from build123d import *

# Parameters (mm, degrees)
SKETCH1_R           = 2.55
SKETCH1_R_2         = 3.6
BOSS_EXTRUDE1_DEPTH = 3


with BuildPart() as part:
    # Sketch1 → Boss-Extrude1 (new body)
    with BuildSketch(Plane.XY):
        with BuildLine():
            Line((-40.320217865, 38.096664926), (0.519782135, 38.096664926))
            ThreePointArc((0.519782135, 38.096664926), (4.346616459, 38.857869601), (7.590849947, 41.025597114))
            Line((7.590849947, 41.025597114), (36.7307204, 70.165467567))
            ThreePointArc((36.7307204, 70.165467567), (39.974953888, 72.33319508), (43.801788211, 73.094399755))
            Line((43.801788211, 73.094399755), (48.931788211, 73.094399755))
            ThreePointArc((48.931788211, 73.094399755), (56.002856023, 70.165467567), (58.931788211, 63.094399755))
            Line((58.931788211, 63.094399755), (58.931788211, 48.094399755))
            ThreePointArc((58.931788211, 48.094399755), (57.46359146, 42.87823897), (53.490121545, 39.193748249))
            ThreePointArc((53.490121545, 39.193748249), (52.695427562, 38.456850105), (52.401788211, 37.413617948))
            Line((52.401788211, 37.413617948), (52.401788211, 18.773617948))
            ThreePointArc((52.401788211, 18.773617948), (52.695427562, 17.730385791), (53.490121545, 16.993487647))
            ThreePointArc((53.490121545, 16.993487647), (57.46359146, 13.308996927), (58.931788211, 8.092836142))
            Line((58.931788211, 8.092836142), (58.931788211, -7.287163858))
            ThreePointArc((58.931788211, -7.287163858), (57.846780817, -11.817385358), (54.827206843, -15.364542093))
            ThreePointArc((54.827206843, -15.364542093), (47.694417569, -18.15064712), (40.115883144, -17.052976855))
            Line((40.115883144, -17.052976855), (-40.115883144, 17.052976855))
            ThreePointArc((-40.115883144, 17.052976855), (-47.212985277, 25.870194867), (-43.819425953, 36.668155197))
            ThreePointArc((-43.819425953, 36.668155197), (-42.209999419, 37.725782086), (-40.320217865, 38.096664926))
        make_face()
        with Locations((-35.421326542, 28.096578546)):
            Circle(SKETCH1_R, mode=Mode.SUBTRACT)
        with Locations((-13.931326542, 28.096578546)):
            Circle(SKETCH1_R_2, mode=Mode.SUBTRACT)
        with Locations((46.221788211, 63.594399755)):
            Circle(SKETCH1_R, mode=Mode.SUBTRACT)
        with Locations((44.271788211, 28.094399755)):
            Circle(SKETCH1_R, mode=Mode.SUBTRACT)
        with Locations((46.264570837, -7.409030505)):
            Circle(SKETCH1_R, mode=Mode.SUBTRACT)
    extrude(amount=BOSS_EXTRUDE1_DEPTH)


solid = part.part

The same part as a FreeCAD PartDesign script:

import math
import FreeCAD as App
import Part
import Sketcher
Q = App.Units.Quantity

doc = App.newDocument("Part")
body = doc.addObject("PartDesign::Body", "Body")

sketch1 = doc.addObject("Sketcher::SketchObject", "Sketch")
body.addObject(sketch1)
sketch1.AttachmentSupport = (doc.XY_Plane, [""])
sketch1.MapMode = "FlatFace"
sketch1.addGeometry(Part.LineSegment(App.Vector(0.5, 38.1, 0), App.Vector(-40.3, 38.1, 0)), False)
sketch1.addGeometry(Part.ArcOfCircle(Part.Circle(App.Vector(-40.3, 33.1, 0), App.Vector(0, 0, 1), 5), math.radians(90), math.radians(134)), False)
sketch1.addGeometry(Part.ArcOfCircle(Part.Circle(App.Vector(-35.4, 28.1, 0), App.Vector(0, 0, 1), 12), math.radians(134), math.radians(247)), False)
sketch1.addGeometry(Part.LineSegment(App.Vector(-40.1, 17.1, 0), App.Vector(40.1, -17.1, 0)), False)
sketch1.addGeometry(Part.ArcOfCircle(Part.Circle(App.Vector(46, -3.2, 0), App.Vector(0, 0, 1), 15), math.radians(-113), math.radians(-54)), False)
sketch1.addGeometry(Part.ArcOfCircle(Part.Circle(App.Vector(48.9, -7.3, 0), App.Vector(0, 0, 1), 10), math.radians(-54), math.radians(0)), False)
sketch1.addGeometry(Part.LineSegment(App.Vector(58.9, -7.3, 0), App.Vector(58.9, 8.1, 0)), False)
sketch1.addGeometry(Part.ArcOfCircle(Part.Circle(App.Vector(48.9, 8.1, 0), App.Vector(0, 0, 1), 10), math.radians(0), math.radians(63)), False)
sketch1.addGeometry(Part.ArcOfCircle(Part.Circle(App.Vector(54.4, 18.8, 0), App.Vector(0, 0, 1), 2), math.radians(-180), math.radians(-117)), False)
sketch1.addGeometry(Part.LineSegment(App.Vector(52.4, 18.8, 0), App.Vector(52.4, 37.4, 0)), False)
sketch1.addGeometry(Part.ArcOfCircle(Part.Circle(App.Vector(54.4, 37.4, 0), App.Vector(0, 0, 1), 2), math.radians(117), math.radians(180)), False)
sketch1.addGeometry(Part.ArcOfCircle(Part.Circle(App.Vector(48.9, 48.1, 0), App.Vector(0, 0, 1), 10), math.radians(-63), math.radians(0)), False)
sketch1.addGeometry(Part.LineSegment(App.Vector(58.9, 48.1, 0), App.Vector(58.9, 63.1, 0)), False)
sketch1.addGeometry(Part.ArcOfCircle(Part.Circle(App.Vector(48.9, 63.1, 0), App.Vector(0, 0, 1), 10), math.radians(0), math.radians(90)), False)
sketch1.addGeometry(Part.LineSegment(App.Vector(48.9, 73.1, 0), App.Vector(43.8, 73.1, 0)), False)
sketch1.addGeometry(Part.ArcOfCircle(Part.Circle(App.Vector(43.8, 63.1, 0), App.Vector(0, 0, 1), 10), math.radians(90), math.radians(135)), False)
sketch1.addGeometry(Part.LineSegment(App.Vector(36.7, 70.2, 0), App.Vector(7.6, 41, 0)), False)
sketch1.addGeometry(Part.ArcOfCircle(Part.Circle(App.Vector(0.5, 48.1, 0), App.Vector(0, 0, 1), 10), math.radians(-90), math.radians(-45)), False)
sketch1.addGeometry(Part.Circle(App.Vector(46.3, -7.4, 0), App.Vector(0, 0, 1), 2.5), False)
sketch1.addGeometry(Part.Circle(App.Vector(44.3, 28.1, 0), App.Vector(0, 0, 1), 2.5), False)
sketch1.addGeometry(Part.Circle(App.Vector(46.2, 63.6, 0), App.Vector(0, 0, 1), 2.5), False)
sketch1.addGeometry(Part.Circle(App.Vector(-13.9, 28.1, 0), App.Vector(0, 0, 1), 3.6), False)
sketch1.addGeometry(Part.Circle(App.Vector(-35.4, 28.1, 0), App.Vector(0, 0, 1), 2.5), False)
sketch1.addConstraint(Sketcher.Constraint("Tangent", 0, 2, 1, 1))
sketch1.addConstraint(Sketcher.Constraint("Tangent", 1, 2, 2, 1))
sketch1.addConstraint(Sketcher.Constraint("Tangent", 2, 2, 3, 1))
sketch1.addConstraint(Sketcher.Constraint("Tangent", 3, 2, 4, 1))
sketch1.addConstraint(Sketcher.Constraint("Tangent", 4, 2, 5, 1))
sketch1.addConstraint(Sketcher.Constraint("Tangent", 5, 2, 6, 1))
sketch1.addConstraint(Sketcher.Constraint("Tangent", 6, 2, 7, 1))
sketch1.addConstraint(Sketcher.Constraint("Tangent", 7, 2, 8, 2))
sketch1.addConstraint(Sketcher.Constraint("Tangent", 8, 1, 9, 1))
sketch1.addConstraint(Sketcher.Constraint("Tangent", 9, 2, 10, 2))
sketch1.addConstraint(Sketcher.Constraint("Tangent", 10, 1, 11, 1))
sketch1.addConstraint(Sketcher.Constraint("Tangent", 11, 2, 12, 1))
sketch1.addConstraint(Sketcher.Constraint("Tangent", 12, 2, 13, 1))
sketch1.addConstraint(Sketcher.Constraint("Tangent", 13, 2, 14, 1))
sketch1.addConstraint(Sketcher.Constraint("Tangent", 14, 2, 15, 1))
sketch1.addConstraint(Sketcher.Constraint("Tangent", 15, 2, 16, 1))
sketch1.addConstraint(Sketcher.Constraint("Tangent", 16, 2, 17, 2))
sketch1.addConstraint(Sketcher.Constraint("Tangent", 17, 1, 0, 1))
sketch1.addConstraint(Sketcher.Constraint("Horizontal", 0))
sketch1.addConstraint(Sketcher.Constraint("Vertical", 6))
sketch1.addConstraint(Sketcher.Constraint("Vertical", 9))
sketch1.addConstraint(Sketcher.Constraint("Vertical", 12))
sketch1.addConstraint(Sketcher.Constraint("Horizontal", 14))
sketch1.addConstraint(Sketcher.Constraint("Coincident", 22, 3, 2, 3))
sketch1.addConstraint(Sketcher.Constraint("Equal", 5, 7))
sketch1.addConstraint(Sketcher.Constraint("Equal", 8, 10))
sketch1.addConstraint(Sketcher.Constraint("Equal", 7, 11))
sketch1.addConstraint(Sketcher.Constraint("Equal", 11, 13))
sketch1.addConstraint(Sketcher.Constraint("Equal", 13, 15))
sketch1.addConstraint(Sketcher.Constraint("Equal", 15, 17))
sketch1.addConstraint(Sketcher.Constraint("Equal", 18, 19))
sketch1.addConstraint(Sketcher.Constraint("Equal", 19, 20))
sketch1.addConstraint(Sketcher.Constraint("Equal", 20, 22))
sketch1.addConstraint(Sketcher.Constraint("Symmetric", 2, 2, 3, 2, -1, 1))
sketch1.addConstraint(Sketcher.Constraint("Horizontal", 2, 3, 21, 3))
sketch1.addConstraint(Sketcher.Constraint("Vertical", 7, 3, 11, 3))
sketch1.addConstraint(Sketcher.Constraint("Radius", 1, 5.0))
sketch1.addConstraint(Sketcher.Constraint("Radius", 2, 12.0))
sketch1.addConstraint(Sketcher.Constraint("Radius", 4, 15.0))
sketch1.addConstraint(Sketcher.Constraint("Radius", 5, 10.0))
sketch1.addConstraint(Sketcher.Constraint("Radius", 8, 2.0))
sketch1.addConstraint(Sketcher.Constraint("Diameter", 18, 5.1))
sketch1.addConstraint(Sketcher.Constraint("Diameter", 21, 7.2))
sketch1.addConstraint(Sketcher.Constraint("DistanceY", 12, 1, 12, 2, 15.0))
sketch1.addConstraint(Sketcher.Constraint("Angle", 16, Q("-135 deg")))
sketch1.addConstraint(Sketcher.Constraint("DistanceY", 19, 3, 11, 3, 20.0))
sketch1.addConstraint(Sketcher.Constraint("DistanceX", 0, 2, 0, 1, 40.84))
sketch1.addConstraint(Sketcher.Constraint("DistanceX", 14, 2, 14, 1, 5.13))
sketch1.addConstraint(Sketcher.Constraint("DistanceY", 6, 1, 6, 2, 15.38))
sketch1.addConstraint(Sketcher.Constraint("DistanceY", 9, 1, 9, 2, 18.64))
sketch1.addConstraint(Sketcher.Constraint("Angle", 3, Q("-23.03 deg")))
sketch1.addConstraint(Sketcher.Constraint("DistanceX", 15, 3, 10, 3, 10.6))
sketch1.addConstraint(Sketcher.Constraint("DistanceY", 15, 3, 20, 3, 0.5))
sketch1.addConstraint(Sketcher.Constraint("Distance", 3, 87.18))
sketch1.addConstraint(Sketcher.Constraint("Distance", 16, 41.21))
sketch1.addConstraint(Sketcher.Constraint("DistanceX", 19, 3, 10, 3, 10.13))
sketch1.addConstraint(Sketcher.Constraint("DistanceX", 15, 3, 20, 3, 2.42))
sketch1.addConstraint(Sketcher.Constraint("DistanceX", 2, 3, 21, 3, 21.49))
sketch1.addConstraint(Sketcher.Constraint("DistanceX", -1, 1, 18, 3, 46.264571))
sketch1.addConstraint(Sketcher.Constraint("DistanceY", 18, 3, -1, 1, 7.409031))
pad1 = doc.addObject("PartDesign::Pad", "Pad")
body.addObject(pad1)
pad1.Profile = sketch1
pad1.Length = 3

doc.recompute()
